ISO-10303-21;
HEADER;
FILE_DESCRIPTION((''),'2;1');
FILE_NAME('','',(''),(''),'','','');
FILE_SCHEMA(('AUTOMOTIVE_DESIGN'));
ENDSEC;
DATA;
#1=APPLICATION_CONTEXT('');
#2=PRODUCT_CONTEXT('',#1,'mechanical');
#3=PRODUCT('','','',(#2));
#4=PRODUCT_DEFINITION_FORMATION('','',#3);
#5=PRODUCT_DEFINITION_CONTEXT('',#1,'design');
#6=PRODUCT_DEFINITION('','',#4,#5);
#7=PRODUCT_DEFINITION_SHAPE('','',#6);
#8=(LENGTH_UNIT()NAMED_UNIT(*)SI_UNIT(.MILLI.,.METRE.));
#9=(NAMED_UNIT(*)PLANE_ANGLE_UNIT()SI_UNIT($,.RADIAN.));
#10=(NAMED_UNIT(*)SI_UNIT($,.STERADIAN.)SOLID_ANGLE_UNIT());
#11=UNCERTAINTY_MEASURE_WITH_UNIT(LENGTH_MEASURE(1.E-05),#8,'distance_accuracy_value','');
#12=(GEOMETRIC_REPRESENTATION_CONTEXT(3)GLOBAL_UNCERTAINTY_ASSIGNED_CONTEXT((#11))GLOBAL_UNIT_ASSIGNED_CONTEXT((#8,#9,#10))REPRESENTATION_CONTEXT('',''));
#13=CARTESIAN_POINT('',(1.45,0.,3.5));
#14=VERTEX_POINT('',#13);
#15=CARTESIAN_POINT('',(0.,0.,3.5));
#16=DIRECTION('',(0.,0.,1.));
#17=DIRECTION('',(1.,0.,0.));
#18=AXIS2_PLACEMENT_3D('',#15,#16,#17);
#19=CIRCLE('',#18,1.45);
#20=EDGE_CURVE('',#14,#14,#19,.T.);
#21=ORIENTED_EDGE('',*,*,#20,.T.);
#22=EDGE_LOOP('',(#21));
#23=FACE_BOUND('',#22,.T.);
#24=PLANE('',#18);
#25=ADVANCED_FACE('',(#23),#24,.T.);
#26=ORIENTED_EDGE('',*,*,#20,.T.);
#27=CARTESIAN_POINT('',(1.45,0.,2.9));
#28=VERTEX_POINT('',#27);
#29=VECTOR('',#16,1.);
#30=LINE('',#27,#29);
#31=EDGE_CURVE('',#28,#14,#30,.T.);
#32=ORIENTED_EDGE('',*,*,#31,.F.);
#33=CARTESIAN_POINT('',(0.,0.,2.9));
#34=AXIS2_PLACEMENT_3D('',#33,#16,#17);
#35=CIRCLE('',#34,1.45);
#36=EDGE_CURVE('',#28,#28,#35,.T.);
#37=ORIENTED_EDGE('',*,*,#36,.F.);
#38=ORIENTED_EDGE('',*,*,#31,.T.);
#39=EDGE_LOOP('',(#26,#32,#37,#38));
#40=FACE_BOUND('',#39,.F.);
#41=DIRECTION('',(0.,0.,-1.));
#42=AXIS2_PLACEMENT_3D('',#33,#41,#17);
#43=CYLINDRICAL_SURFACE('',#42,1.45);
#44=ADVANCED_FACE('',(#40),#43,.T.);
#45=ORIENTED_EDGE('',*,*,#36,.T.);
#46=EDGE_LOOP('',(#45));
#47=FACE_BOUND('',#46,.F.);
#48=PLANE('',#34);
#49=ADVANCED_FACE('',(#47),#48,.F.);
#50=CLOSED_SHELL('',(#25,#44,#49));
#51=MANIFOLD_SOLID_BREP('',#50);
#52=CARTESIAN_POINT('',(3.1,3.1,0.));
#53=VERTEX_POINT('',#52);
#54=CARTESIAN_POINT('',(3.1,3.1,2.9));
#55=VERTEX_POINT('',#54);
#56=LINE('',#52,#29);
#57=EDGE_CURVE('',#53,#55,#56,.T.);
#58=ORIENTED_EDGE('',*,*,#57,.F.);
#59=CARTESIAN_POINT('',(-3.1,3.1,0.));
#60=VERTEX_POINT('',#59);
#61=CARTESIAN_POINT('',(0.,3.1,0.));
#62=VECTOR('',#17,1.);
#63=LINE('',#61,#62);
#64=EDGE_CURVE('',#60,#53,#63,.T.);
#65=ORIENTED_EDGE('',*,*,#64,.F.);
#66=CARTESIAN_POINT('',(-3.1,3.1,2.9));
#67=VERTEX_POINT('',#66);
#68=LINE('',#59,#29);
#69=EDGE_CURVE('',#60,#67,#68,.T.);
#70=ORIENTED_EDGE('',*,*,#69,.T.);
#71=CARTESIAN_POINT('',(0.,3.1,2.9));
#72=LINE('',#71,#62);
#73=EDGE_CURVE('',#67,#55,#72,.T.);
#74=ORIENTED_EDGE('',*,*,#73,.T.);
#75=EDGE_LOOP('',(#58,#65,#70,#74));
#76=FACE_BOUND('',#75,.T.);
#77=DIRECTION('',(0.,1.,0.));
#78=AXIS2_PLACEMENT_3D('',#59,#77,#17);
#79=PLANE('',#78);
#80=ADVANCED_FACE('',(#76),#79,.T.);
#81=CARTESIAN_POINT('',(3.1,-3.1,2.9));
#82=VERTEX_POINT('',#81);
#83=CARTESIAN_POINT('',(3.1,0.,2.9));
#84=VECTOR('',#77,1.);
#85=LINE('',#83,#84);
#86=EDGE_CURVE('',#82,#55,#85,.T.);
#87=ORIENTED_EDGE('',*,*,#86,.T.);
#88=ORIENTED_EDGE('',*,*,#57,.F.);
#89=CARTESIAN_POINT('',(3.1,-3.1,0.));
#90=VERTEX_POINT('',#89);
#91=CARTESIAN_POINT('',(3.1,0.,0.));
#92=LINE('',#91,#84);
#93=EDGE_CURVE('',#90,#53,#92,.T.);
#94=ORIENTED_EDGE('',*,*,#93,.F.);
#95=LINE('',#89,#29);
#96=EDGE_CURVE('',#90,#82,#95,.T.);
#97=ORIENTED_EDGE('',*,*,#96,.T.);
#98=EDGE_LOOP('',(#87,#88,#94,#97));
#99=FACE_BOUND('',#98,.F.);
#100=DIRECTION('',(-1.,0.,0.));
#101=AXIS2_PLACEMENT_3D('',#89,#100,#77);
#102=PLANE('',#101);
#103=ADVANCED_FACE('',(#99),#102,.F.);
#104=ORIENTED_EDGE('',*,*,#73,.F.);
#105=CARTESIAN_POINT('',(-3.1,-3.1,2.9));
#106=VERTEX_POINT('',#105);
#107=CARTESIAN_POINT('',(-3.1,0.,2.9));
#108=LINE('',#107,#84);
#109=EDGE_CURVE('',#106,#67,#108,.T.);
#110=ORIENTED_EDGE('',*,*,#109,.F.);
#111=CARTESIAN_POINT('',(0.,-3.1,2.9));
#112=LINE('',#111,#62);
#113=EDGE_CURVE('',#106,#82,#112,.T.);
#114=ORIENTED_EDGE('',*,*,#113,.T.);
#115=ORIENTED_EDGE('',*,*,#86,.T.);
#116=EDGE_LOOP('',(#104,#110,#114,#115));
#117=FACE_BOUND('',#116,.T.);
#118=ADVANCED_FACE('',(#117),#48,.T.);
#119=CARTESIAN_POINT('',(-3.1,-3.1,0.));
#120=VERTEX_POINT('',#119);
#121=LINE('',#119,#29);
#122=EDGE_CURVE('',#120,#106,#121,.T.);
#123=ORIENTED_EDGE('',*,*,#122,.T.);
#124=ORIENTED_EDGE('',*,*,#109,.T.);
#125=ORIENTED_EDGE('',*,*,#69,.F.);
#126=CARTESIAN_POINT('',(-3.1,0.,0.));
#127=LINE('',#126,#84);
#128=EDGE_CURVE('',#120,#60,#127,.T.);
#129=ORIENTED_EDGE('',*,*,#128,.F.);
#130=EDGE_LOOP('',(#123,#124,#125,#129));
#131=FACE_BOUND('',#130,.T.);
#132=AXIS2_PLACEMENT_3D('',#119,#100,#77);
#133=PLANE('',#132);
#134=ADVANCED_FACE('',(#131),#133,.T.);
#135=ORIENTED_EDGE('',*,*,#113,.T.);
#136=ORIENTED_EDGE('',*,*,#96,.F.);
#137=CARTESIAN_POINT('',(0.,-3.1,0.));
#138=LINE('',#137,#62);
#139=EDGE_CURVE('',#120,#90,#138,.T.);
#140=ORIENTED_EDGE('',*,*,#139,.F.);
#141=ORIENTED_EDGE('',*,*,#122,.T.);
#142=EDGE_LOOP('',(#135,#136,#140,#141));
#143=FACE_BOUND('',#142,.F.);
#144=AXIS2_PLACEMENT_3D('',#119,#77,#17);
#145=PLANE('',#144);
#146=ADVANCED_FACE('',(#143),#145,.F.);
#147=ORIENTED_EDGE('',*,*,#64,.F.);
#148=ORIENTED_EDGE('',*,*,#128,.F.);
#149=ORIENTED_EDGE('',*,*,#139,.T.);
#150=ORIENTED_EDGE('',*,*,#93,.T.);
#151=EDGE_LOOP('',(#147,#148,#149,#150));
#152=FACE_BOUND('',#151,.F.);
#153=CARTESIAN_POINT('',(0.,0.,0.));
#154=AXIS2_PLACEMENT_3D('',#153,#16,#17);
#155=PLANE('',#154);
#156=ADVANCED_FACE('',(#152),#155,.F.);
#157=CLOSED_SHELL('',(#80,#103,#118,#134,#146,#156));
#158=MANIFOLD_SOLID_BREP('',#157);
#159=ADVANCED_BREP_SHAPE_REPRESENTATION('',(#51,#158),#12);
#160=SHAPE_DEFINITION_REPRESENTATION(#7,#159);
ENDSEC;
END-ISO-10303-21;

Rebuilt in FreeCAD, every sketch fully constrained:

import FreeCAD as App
import Part
import Sketcher

doc = App.newDocument("Part")
body = doc.addObject("PartDesign::Body", "Body")

# Sketch on XY plane
sketch1 = body.newObject("Sketcher::SketchObject", "Sketch")
sketch1.AttachmentSupport = (doc.getObject("XY_Plane"), [""])
sketch1.MapMode = "FlatFace"
sketch1.addGeometry([
    Part.LineSegment(App.Vector(-3, 3, 0), App.Vector(-3, -3, 0)),
    Part.LineSegment(App.Vector(-3, -3, 0), App.Vector(3, -3, 0)),
    Part.LineSegment(App.Vector(3, -3, 0), App.Vector(3, 3, 0)),
    Part.LineSegment(App.Vector(3, 3, 0), App.Vector(-3, 3, 0)),
], False)
sketch1.addConstraint([
    Sketcher.Constraint("Coincident", 0, 2, 1, 1),
    Sketcher.Constraint("Coincident", 1, 2, 2, 1),
    Sketcher.Constraint("Coincident", 2, 2, 3, 1),
    Sketcher.Constraint("Coincident", 3, 2, 0, 1),
    Sketcher.Constraint("Vertical", 0),
    Sketcher.Constraint("Horizontal", 1),
    Sketcher.Constraint("Vertical", 2),
    Sketcher.Constraint("Horizontal", 3),
    Sketcher.Constraint("Symmetric", 0, 2, 2, 2, -1, 1),
    Sketcher.Constraint("Equal", 3, 0),
    Sketcher.Constraint("DistanceX", 1, 1, 1, 2, 6.2),
])
pad1 = body.newObject("PartDesign::Pad", "Pad")
pad1.Profile = sketch1
pad1.Length = 2.9
body2 = doc.addObject("PartDesign::Body", "Body001")

# Sketch on XY plane
sketch2 = body2.newObject("Sketcher::SketchObject", "Sketch001")
sketch2.AttachmentSupport = (doc.getObject("XY_Plane001"), [""])
sketch2.MapMode = "FlatFace"
sketch2.AttachmentOffset = App.Placement(App.Vector(0, 0, 2.9), App.Rotation())
sketch2.addGeometry(Part.Circle(App.Vector(0, 0, 0), App.Vector(0, 0, 1), 1.4), False)
sketch2.addConstraint([
    Sketcher.Constraint("Coincident", 0, 3, -1, 1),
    Sketcher.Constraint("Diameter", 0, 2.9),
])
pad2 = body2.newObject("PartDesign::Pad", "Pad001")
pad2.Profile = sketch2
pad2.Length = 0.6

doc.recompute()
